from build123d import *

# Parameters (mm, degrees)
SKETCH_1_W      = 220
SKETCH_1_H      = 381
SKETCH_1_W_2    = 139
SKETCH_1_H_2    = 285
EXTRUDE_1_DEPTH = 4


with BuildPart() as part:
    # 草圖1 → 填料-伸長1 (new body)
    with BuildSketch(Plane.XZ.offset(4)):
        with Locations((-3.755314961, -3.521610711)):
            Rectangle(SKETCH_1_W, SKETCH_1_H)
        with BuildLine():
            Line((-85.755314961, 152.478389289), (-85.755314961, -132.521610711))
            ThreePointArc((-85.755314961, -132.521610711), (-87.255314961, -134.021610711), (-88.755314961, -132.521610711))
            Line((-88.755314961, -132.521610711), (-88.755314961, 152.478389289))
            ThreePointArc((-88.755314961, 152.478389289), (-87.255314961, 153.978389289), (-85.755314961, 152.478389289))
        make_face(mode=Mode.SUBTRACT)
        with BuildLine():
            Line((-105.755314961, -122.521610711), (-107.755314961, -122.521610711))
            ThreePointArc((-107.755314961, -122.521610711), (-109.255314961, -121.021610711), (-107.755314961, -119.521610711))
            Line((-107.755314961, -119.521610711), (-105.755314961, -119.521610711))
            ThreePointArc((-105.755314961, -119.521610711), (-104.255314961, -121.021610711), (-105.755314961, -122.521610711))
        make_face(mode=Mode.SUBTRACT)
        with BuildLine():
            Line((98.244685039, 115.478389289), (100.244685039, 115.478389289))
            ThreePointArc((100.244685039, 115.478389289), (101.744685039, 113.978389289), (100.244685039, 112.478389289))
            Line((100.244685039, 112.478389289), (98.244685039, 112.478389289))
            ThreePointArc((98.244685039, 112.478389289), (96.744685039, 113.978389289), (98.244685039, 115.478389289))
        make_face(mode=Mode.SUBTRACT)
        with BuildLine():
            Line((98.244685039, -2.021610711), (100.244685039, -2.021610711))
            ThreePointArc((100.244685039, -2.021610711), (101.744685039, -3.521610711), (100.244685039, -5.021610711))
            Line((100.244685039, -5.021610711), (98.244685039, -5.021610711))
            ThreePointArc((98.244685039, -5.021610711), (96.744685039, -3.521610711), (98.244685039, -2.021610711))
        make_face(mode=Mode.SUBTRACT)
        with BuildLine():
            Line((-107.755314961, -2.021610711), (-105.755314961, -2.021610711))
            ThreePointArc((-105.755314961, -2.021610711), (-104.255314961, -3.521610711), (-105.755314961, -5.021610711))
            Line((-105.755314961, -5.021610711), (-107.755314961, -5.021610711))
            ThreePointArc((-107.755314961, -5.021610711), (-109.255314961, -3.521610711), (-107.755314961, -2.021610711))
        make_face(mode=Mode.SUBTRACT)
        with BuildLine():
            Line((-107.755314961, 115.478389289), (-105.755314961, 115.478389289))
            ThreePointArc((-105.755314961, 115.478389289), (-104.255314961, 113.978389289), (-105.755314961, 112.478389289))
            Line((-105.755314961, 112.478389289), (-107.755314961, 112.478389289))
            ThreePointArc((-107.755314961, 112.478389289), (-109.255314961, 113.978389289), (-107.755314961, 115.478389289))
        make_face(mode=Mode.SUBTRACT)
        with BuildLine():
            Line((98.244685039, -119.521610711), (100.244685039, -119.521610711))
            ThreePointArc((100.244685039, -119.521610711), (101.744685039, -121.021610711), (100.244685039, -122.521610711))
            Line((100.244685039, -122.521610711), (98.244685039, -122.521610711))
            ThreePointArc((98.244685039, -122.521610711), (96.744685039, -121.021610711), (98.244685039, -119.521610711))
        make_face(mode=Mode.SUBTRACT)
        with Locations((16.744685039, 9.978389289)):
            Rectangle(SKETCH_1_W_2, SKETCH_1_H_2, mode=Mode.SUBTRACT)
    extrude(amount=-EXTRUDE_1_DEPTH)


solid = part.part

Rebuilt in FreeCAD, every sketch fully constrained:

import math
import FreeCAD as App
import Part
import Sketcher
Q = App.Units.Quantity


def add_polygon(sketch, points):
    """Adds a closed chain of lines whose ends are joined by coincident constraints."""
    first, n = sketch.GeometryCount, len(points)
    for a, b in zip(points, points[1:] + points[:1]):
        sketch.addGeometry(Part.LineSegment(App.Vector(*a, 0), App.Vector(*b, 0)), False)
    for i in range(n):
        sketch.addConstraint(Sketcher.Constraint("Coincident", first + i, 2, first + (i + 1) % n, 1))

doc = App.newDocument("Part")
body = doc.addObject("PartDesign::Body", "Body")

# Sketch on XZ plane
sketch1 = body.newObject("Sketcher::SketchObject", "Sketch")
sketch1.AttachmentSupport = (doc.getObject("XZ_Plane"), [""])
sketch1.MapMode = "FlatFace"
sketch1.AttachmentOffset = App.Placement(App.Vector(0, 0, 4), App.Rotation())
add_polygon(sketch1, [(-113.755315, 186.978389), (-113.755315, -194.021611), (106.244685, -194.021611), (106.244685, 186.978389)])  # lines 0-3
sketch1.addGeometry(Part.ArcOfCircle(Part.Circle(App.Vector(-105.755315, -121.021611, 0), App.Vector(0, 0, 1), 1.5), math.radians(-90), math.radians(90)), False)  # 4
sketch1.addGeometry(Part.LineSegment(App.Vector(-105.755315, -122.521611, 0), App.Vector(-107.755315, -122.521611, 0)), False)  # 5
sketch1.addGeometry(Part.ArcOfCircle(Part.Circle(App.Vector(-107.755315, -121.021611, 0), App.Vector(0, 0, 1), 1.5), math.radians(90), math.radians(270)), False)  # 6
sketch1.addGeometry(Part.LineSegment(App.Vector(-107.755315, -119.521611, 0), App.Vector(-105.755315, -119.521611, 0)), False)  # 7
sketch1.addGeometry(Part.ArcOfCircle(Part.Circle(App.Vector(-107.755315, -3.521611, 0), App.Vector(0, 0, 1), 1.5), math.radians(90), math.radians(270)), False)  # 8
sketch1.addGeometry(Part.LineSegment(App.Vector(-107.755315, -2.021611, 0), App.Vector(-105.755315, -2.021611, 0)), False)  # 9
sketch1.addGeometry(Part.ArcOfCircle(Part.Circle(App.Vector(-105.755315, -3.521611, 0), App.Vector(0, 0, 1), 1.5), math.radians(-90), math.radians(90)), False)  # 10
sketch1.addGeometry(Part.LineSegment(App.Vector(-105.755315, -5.021611, 0), App.Vector(-107.755315, -5.021611, 0)), False)  # 11
sketch1.addGeometry(Part.ArcOfCircle(Part.Circle(App.Vector(98.244685, -121.021611, 0), App.Vector(0, 0, 1), 1.5), math.radians(90), math.radians(270)), False)  # 12
sketch1.addGeometry(Part.LineSegment(App.Vector(98.244685, -119.521611, 0), App.Vector(100.244685, -119.521611, 0)), False)  # 13
sketch1.addGeometry(Part.ArcOfCircle(Part.Circle(App.Vector(100.244685, -121.021611, 0), App.Vector(0, 0, 1), 1.5), math.radians(-90), math.radians(90)), False)  # 14
sketch1.addGeometry(Part.LineSegment(App.Vector(100.244685, -122.521611, 0), App.Vector(98.244685, -122.521611, 0)), False)  # 15
sketch1.addGeometry(Part.ArcOfCircle(Part.Circle(App.Vector(98.244685, -3.521611, 0), App.Vector(0, 0, 1), 1.5), math.radians(90), math.radians(270)), False)  # 16
sketch1.addGeometry(Part.LineSegment(App.Vector(98.244685, -2.021611, 0), App.Vector(100.244685, -2.021611, 0)), False)  # 17
sketch1.addGeometry(Part.ArcOfCircle(Part.Circle(App.Vector(100.244685, -3.521611, 0), App.Vector(0, 0, 1), 1.5), math.radians(-90), math.radians(90)), False)  # 18
sketch1.addGeometry(Part.LineSegment(App.Vector(100.244685, -5.021611, 0), App.Vector(98.244685, -5.021611, 0)), False)  # 19
sketch1.addGeometry(Part.ArcOfCircle(Part.Circle(App.Vector(-87.255315, 152.478389, 0), App.Vector(0, 0, 1), 1.5), math.radians(0), math.radians(180)), False)  # 20
sketch1.addGeometry(Part.LineSegment(App.Vector(-85.755315, 152.478389, 0), App.Vector(-85.755315, -132.521611, 0)), False)  # 21
sketch1.addGeometry(Part.ArcOfCircle(Part.Circle(App.Vector(-87.255315, -132.521611, 0), App.Vector(0, 0, 1), 1.5), math.radians(180), math.radians(360)), False)  # 22
sketch1.addGeometry(Part.LineSegment(App.Vector(-88.755315, -132.521611, 0), App.Vector(-88.755315, 152.478389, 0)), False)  # 23
sketch1.addGeometry(Part.ArcOfCircle(Part.Circle(App.Vector(-107.755315, 113.978389, 0), App.Vector(0, 0, 1), 1.5), math.radians(90), math.radians(270)), False)  # 24
sketch1.addGeometry(Part.LineSegment(App.Vector(-107.755315, 115.478389, 0), App.Vector(-105.755315, 115.478389, 0)), False)  # 25
sketch1.addGeometry(Part.ArcOfCircle(Part.Circle(App.Vector(-105.755315, 113.978389, 0), App.Vector(0, 0, 1), 1.5), math.radians(-90), math.radians(90)), False)  # 26
sketch1.addGeometry(Part.LineSegment(App.Vector(-105.755315, 112.478389, 0), App.Vector(-107.755315, 112.478389, 0)), False)  # 27
add_polygon(sketch1, [(86.244685, -132.521611), (-52.755315, -132.521611), (-52.755315, 152.478389), (86.244685, 152.478389)])  # lines 28-31
sketch1.addGeometry(Part.ArcOfCircle(Part.Circle(App.Vector(98.244685, 113.978389, 0), App.Vector(0, 0, 1), 1.5), math.radians(90), math.radians(270)), False)  # 32
sketch1.addGeometry(Part.LineSegment(App.Vector(98.244685, 115.478389, 0), App.Vector(100.244685, 115.478389, 0)), False)  # 33
sketch1.addGeometry(Part.ArcOfCircle(Part.Circle(App.Vector(100.244685, 113.978389, 0), App.Vector(0, 0, 1), 1.5), math.radians(-90), math.radians(90)), False)  # 34
sketch1.addGeometry(Part.LineSegment(App.Vector(100.244685, 112.478389, 0), App.Vector(98.244685, 112.478389, 0)), False)  # 35
sketch1.addConstraint(Sketcher.Constraint("Tangent", 4, 1, 5, 1))
sketch1.addConstraint(Sketcher.Constraint("Tangent", 5, 2, 6, 2))
sketch1.addConstraint(Sketcher.Constraint("Tangent", 6, 1, 7, 1))
sketch1.addConstraint(Sketcher.Constraint("Tangent", 7, 2, 4, 2))
sketch1.addConstraint(Sketcher.Constraint("Tangent", 8, 1, 9, 1))
sketch1.addConstraint(Sketcher.Constraint("Tangent", 9, 2, 10, 2))
sketch1.addConstraint(Sketcher.Constraint("Tangent", 10, 1, 11, 1))
sketch1.addConstraint(Sketcher.Constraint("Tangent", 11, 2, 8, 2))
sketch1.addConstraint(Sketcher.Constraint("Tangent", 12, 1, 13, 1))
sketch1.addConstraint(Sketcher.Constraint("Tangent", 13, 2, 14, 2))
sketch1.addConstraint(Sketcher.Constraint("Tangent", 14, 1, 15, 1))
sketch1.addConstraint(Sketcher.Constraint("Tangent", 15, 2, 12, 2))
sketch1.addConstraint(Sketcher.Constraint("Tangent", 16, 1, 17, 1))
sketch1.addConstraint(Sketcher.Constraint("Tangent", 17, 2, 18, 2))
sketch1.addConstraint(Sketcher.Constraint("Tangent", 18, 1, 19, 1))
sketch1.addConstraint(Sketcher.Constraint("Tangent", 19, 2, 16, 2))
sketch1.addConstraint(Sketcher.Constraint("Tangent", 20, 1, 21, 1))
sketch1.addConstraint(Sketcher.Constraint("Tangent", 21, 2, 22, 2))
sketch1.addConstraint(Sketcher.Constraint("Tangent", 22, 1, 23, 1))
sketch1.addConstraint(Sketcher.Constraint("Tangent", 23, 2, 20, 2))
sketch1.addConstraint(Sketcher.Constraint("Tangent", 24, 1, 25, 1))
sketch1.addConstraint(Sketcher.Constraint("Tangent", 25, 2, 26, 2))
sketch1.addConstraint(Sketcher.Constraint("Tangent", 26, 1, 27, 1))
sketch1.addConstraint(Sketcher.Constraint("Tangent", 27, 2, 24, 2))
sketch1.addConstraint(Sketcher.Constraint("Tangent", 32, 1, 33, 1))
sketch1.addConstraint(Sketcher.Constraint("Tangent", 33, 2, 34, 2))
sketch1.addConstraint(Sketcher.Constraint("Tangent", 34, 1, 35, 1))
sketch1.addConstraint(Sketcher.Constraint("Tangent", 35, 2, 32, 2))
sketch1.addConstraint(Sketcher.Constraint("Vertical", 0))
sketch1.addConstraint(Sketcher.Constraint("Horizontal", 1))
sketch1.addConstraint(Sketcher.Constraint("Vertical", 2))
sketch1.addConstraint(Sketcher.Constraint("Horizontal", 3))
sketch1.addConstraint(Sketcher.Constraint("Horizontal", 5))
sketch1.addConstraint(Sketcher.Constraint("Horizontal", 7))
sketch1.addConstraint(Sketcher.Constraint("Horizontal", 9))
sketch1.addConstraint(Sketcher.Constraint("Horizontal", 11))
sketch1.addConstraint(Sketcher.Constraint("Horizontal", 13))
sketch1.addConstraint(Sketcher.Constraint("Horizontal", 15))
sketch1.addConstraint(Sketcher.Constraint("Horizontal", 17))
sketch1.addConstraint(Sketcher.Constraint("Horizontal", 19))
sketch1.addConstraint(Sketcher.Constraint("Vertical", 21))
sketch1.addConstraint(Sketcher.Constraint("Vertical", 23))
sketch1.addConstraint(Sketcher.Constraint("Horizontal", 25))
sketch1.addConstraint(Sketcher.Constraint("Horizontal", 27))
sketch1.addConstraint(Sketcher.Constraint("Horizontal", 28))
sketch1.addConstraint(Sketcher.Constraint("Vertical", 29))
sketch1.addConstraint(Sketcher.Constraint("Horizontal", 30))
sketch1.addConstraint(Sketcher.Constraint("Vertical", 31))
sketch1.addConstraint(Sketcher.Constraint("Horizontal", 33))
sketch1.addConstraint(Sketcher.Constraint("Horizontal", 35))
sketch1.addConstraint(Sketcher.Constraint("Equal", 6, 8))
sketch1.addConstraint(Sketcher.Constraint("Equal", 10, 12))
sketch1.addConstraint(Sketcher.Constraint("Equal", 14, 16))
sketch1.addConstraint(Sketcher.Constraint("Equal", 18, 20))
sketch1.addConstraint(Sketcher.Constraint("Equal", 22, 24))
sketch1.addConstraint(Sketcher.Constraint("Equal", 26, 32))
sketch1.addConstraint(Sketcher.Constraint("Horizontal", 6, 3, 12, 3))
sketch1.addConstraint(Sketcher.Constraint("Horizontal", 10, 3, 16, 3))
sketch1.addConstraint(Sketcher.Constraint("Horizontal", 26, 3, 32, 3))
sketch1.addConstraint(Sketcher.Constraint("Horizontal", 22, 1, 28, 2))
sketch1.addConstraint(Sketcher.Constraint("Horizontal", 23, 2, 29, 2))
sketch1.addConstraint(Sketcher.Constraint("Vertical", 6, 3, 8, 3))
sketch1.addConstraint(Sketcher.Constraint("Vertical", 4, 3, 10, 3))
sketch1.addConstraint(Sketcher.Constraint("Vertical", 12, 3, 16, 3))
sketch1.addConstraint(Sketcher.Constraint("Vertical", 14, 3, 18, 3))
sketch1.addConstraint(Sketcher.Constraint("Vertical", 8, 3, 24, 3))
sketch1.addConstraint(Sketcher.Constraint("Vertical", 10, 3, 26, 3))
sketch1.addConstraint(Sketcher.Constraint("Vertical", 16, 3, 32, 3))
sketch1.addConstraint(Sketcher.Constraint("Vertical", 18, 3, 34, 3))
sketch1.addConstraint(Sketcher.Constraint("Equal", 11, 13))
sketch1.addConstraint(Sketcher.Constraint("Radius", 4, Q("1.5 mm")))
sketch1.addConstraint(Sketcher.Constraint("DistanceX", 1, 1, 1, 2, Q("220 mm")))
sketch1.addConstraint(Sketcher.Constraint("DistanceX", 5, 2, 5, 1, Q("2 mm")))
sketch1.addConstraint(Sketcher.Constraint("DistanceX", 28, 2, 28, 1, Q("139 mm")))
sketch1.addConstraint(Sketcher.Constraint("DistanceY", 0, 2, 0, 1, Q("381 mm")))
sketch1.addConstraint(Sketcher.Constraint("DistanceY", 21, 2, 21, 1, Q("285 mm")))
sketch1.addConstraint(Sketcher.Constraint("DistanceX", 4, 3, 12, 3, Q("204 mm")))
sketch1.addConstraint(Sketcher.Constraint("DistanceY", 10, 3, 20, 3, Q("156 mm")))
sketch1.addConstraint(Sketcher.Constraint("DistanceY", 6, 3, 24, 3, Q("235 mm")))
sketch1.addConstraint(Sketcher.Constraint("DistanceX", 0, 2, 6, 3, Q("6 mm")))
sketch1.addConstraint(Sketcher.Constraint("DistanceY", 0, 2, 6, 3, Q("73 mm")))
sketch1.addConstraint(Sketcher.Constraint("DistanceY", 22, 3, 4, 1, Q("10 mm")))
sketch1.addConstraint(Sketcher.Constraint("DistanceX", 26, 3, 20, 1, Q("20 mm")))
sketch1.addConstraint(Sketcher.Constraint("DistanceX", 21, 2, 28, 2, Q("33 mm")))
sketch1.addConstraint(Sketcher.Constraint("DistanceY", 4, 3, -1, 1, Q("121.021611 mm")))
sketch1.addConstraint(Sketcher.Constraint("DistanceX", 4, 3, -1, 1, Q("105.755315 mm")))
pad1 = body.newObject("PartDesign::Pad", "Pad")
pad1.Profile = sketch1
pad1.Length = 4
pad1.Reversed = True

doc.recompute()
